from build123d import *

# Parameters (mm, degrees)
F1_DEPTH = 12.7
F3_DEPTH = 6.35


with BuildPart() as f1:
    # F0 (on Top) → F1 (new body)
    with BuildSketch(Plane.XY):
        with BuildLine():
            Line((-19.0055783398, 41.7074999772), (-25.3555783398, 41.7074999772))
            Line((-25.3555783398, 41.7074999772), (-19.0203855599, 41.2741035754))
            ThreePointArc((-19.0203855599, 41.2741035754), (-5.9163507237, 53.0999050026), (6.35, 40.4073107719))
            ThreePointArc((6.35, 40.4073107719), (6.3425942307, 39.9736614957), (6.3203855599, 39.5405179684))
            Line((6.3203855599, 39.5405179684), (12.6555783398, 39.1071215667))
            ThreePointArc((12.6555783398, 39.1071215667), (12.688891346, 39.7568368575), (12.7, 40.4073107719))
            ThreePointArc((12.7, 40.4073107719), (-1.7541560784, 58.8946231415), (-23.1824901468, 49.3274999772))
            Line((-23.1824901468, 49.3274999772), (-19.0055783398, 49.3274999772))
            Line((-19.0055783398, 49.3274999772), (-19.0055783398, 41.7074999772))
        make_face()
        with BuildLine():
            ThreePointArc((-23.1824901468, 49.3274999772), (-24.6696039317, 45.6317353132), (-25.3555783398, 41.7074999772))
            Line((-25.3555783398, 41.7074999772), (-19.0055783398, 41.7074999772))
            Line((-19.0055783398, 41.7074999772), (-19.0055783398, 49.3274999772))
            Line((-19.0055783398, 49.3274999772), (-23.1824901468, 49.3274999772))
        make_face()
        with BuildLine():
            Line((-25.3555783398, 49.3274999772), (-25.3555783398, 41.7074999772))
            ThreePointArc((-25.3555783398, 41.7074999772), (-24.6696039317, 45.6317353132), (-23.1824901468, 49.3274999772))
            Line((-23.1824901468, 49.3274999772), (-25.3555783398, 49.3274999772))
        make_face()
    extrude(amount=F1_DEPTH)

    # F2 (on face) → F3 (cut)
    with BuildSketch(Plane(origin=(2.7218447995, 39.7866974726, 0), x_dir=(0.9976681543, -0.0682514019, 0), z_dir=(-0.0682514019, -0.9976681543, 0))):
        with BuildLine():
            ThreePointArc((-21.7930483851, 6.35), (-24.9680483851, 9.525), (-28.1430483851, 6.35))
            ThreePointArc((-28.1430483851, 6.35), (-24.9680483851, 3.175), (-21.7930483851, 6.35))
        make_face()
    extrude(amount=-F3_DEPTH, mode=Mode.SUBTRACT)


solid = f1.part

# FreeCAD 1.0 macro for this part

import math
import FreeCAD as App
import Part
import Sketcher
Q = App.Units.Quantity

doc = App.newDocument("Part")
body = doc.addObject("PartDesign::Body", "Body")

# Sketch on XY plane
sketch1 = body.newObject("Sketcher::SketchObject", "Sketch")
sketch1.AttachmentSupport = (doc.getObject("XY_Plane"), [""])
sketch1.MapMode = "FlatFace"
sketch1.addGeometry([
    Part.LineSegment(App.Vector(-25.355578, 41.7075, 0), App.Vector(-19.020386, 41.274104, 0)),  # 0
    Part.ArcOfCircle(Part.Circle(App.Vector(-6.35, 40.407311, 0), App.Vector(0, 0, 1), 12.7), math.radians(0), math.radians(176.08644)),  # 1
    Part.ArcOfCircle(Part.Circle(App.Vector(-6.35, 40.407311, 0), App.Vector(0, 0, 1), 12.7), math.radians(-3.91356), math.radians(0)),  # 2
    Part.LineSegment(App.Vector(6.320386, 39.540518, 0), App.Vector(12.655578, 39.107122, 0)),  # 3
    Part.ArcOfCircle(Part.Circle(App.Vector(-6.35, 40.407311, 0), App.Vector(0, 0, 1), 19.05), math.radians(-3.91356), math.radians(0)),  # 4
    Part.ArcOfCircle(Part.Circle(App.Vector(-6.35, 40.407311, 0), App.Vector(0, 0, 1), 19.05), math.radians(0), math.radians(152.079149)),  # 5
    Part.LineSegment(App.Vector(-23.18249, 49.3275, 0), App.Vector(-25.355578, 49.3275, 0)),  # 6
    Part.LineSegment(App.Vector(-25.355578, 49.3275, 0), App.Vector(-25.355578, 41.7075, 0)),  # 7
], False)
sketch1.addConstraint([
    Sketcher.Constraint("Coincident", 0, 2, 1, 2),
    Sketcher.Constraint("Tangent", 1, 1, 2, 2),
    Sketcher.Constraint("Coincident", 2, 1, 3, 1),
    Sketcher.Constraint("Coincident", 3, 2, 4, 1),
    Sketcher.Constraint("Tangent", 4, 2, 5, 1),
    Sketcher.Constraint("Coincident", 5, 2, 6, 1),
    Sketcher.Constraint("Coincident", 6, 2, 7, 1),
    Sketcher.Constraint("Coincident", 7, 2, 0, 1),
    Sketcher.Constraint("Horizontal", 6),
    Sketcher.Constraint("Vertical", 7),
    Sketcher.Constraint("Coincident", 4, 3, 1, 3),
    Sketcher.Constraint("Equal", 1, 2),
    Sketcher.Constraint("Equal", 4, 5),
    Sketcher.Constraint("Parallel", 0, 3),
    Sketcher.Constraint("Horizontal", 5, 3, 1, 1),
    Sketcher.Constraint("Horizontal", 1, 1, 4, 2),
    Sketcher.Constraint("Equal", 0, 3),
    Sketcher.Constraint("Radius", 1, Q("0.5 in")),
    Sketcher.Constraint("Radius", 4, Q("0.75 in")),
    Sketcher.Constraint("DistanceY", 7, 2, 7, 1, Q("0.3 in")),
    Sketcher.Constraint("DistanceX", -1, 1, 4, 2, Q("0.5 in")),
    Sketcher.Constraint("DistanceX", 6, 2, 6, 1, Q("2.173088 mm")),
    Sketcher.Constraint("DistanceY", -1, 1, 5, 2, Q("49.3275 mm")),
    Sketcher.Constraint("DistanceX", -1, 1, 3, 2, Q("12.655578 mm")),
    Sketcher.Constraint("DistanceX", 0, 2, -1, 1, Q("19.020386 mm")),
])
pad1 = body.newObject("PartDesign::Pad", "Pad")
pad1.Profile = sketch1
pad1.Length = Q("0.5 in")

# Sketch on an angled plane
sketch2 = body.newObject("Sketcher::SketchObject", "Sketch001")
sketch2.Placement = App.Placement(App.Vector(2.721845, 39.786697, 0), App.Rotation(App.Vector(0.997668154, -0.068251402, 0), App.Vector(0, 0, 0.999999999), App.Vector(-0.068251402, -0.997668154, 0), "ZXY"))
sketch2.addGeometry(Part.Circle(App.Vector(-24.968048, 6.35, 0), App.Vector(0, 0, 1), 3.175), False)
sketch2.addConstraint([
    Sketcher.Constraint("Diameter", 0, Q("0.25 in")),
    Sketcher.Constraint("DistanceY", -1, 1, 0, 3, Q("0.25 in")),
    Sketcher.Constraint("DistanceX", 0, 3, -1, 1, Q("24.968048 mm")),
])
pocket1 = body.newObject("PartDesign::Pocket", "Pocket")
pocket1.Profile = sketch2
pocket1.Length = Q("0.25 in")

doc.recompute()
